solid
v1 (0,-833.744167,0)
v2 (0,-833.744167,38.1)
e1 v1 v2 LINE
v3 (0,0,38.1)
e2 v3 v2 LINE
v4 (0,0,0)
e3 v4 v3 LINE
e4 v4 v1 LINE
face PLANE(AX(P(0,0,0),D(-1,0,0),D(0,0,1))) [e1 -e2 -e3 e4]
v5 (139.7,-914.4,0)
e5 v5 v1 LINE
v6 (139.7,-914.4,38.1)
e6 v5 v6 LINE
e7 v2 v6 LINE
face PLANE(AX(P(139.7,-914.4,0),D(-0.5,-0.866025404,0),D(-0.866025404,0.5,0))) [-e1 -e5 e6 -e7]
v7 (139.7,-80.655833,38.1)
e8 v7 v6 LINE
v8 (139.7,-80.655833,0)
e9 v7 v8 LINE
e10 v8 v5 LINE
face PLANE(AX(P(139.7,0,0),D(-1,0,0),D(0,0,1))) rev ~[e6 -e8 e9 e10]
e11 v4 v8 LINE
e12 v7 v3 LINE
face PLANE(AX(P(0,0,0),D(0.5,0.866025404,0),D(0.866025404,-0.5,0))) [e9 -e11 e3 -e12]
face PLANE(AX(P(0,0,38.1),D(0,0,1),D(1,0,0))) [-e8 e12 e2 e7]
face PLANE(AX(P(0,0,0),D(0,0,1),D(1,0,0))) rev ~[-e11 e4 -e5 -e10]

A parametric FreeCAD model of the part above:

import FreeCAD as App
import Part
import Sketcher
Q = App.Units.Quantity

doc = App.newDocument("Part")
body = doc.addObject("PartDesign::Body", "Body")

# Sketch on XZ plane
sketch1 = body.newObject("Sketcher::SketchObject", "Sketch")
sketch1.AttachmentSupport = (doc.getObject("XZ_Plane"), [""])
sketch1.MapMode = "FlatFace"
sketch1.addGeometry([
    Part.LineSegment(App.Vector(0, 38, 0), App.Vector(0, 0, 0)),
    Part.LineSegment(App.Vector(0, 0, 0), App.Vector(140, 0, 0)),
    Part.LineSegment(App.Vector(140, 0, 0), App.Vector(140, 38, 0)),
    Part.LineSegment(App.Vector(140, 38, 0), App.Vector(0, 38, 0)),
], False)
sketch1.addConstraint([
    Sketcher.Constraint("Coincident", 0, 2, 1, 1),
    Sketcher.Constraint("Coincident", 1, 2, 2, 1),
    Sketcher.Constraint("Coincident", 2, 2, 3, 1),
    Sketcher.Constraint("Coincident", 3, 2, 0, 1),
    Sketcher.Constraint("Vertical", 0),
    Sketcher.Constraint("Horizontal", 1),
    Sketcher.Constraint("Vertical", 2),
    Sketcher.Constraint("Horizontal", 3),
    Sketcher.Constraint("Coincident", 0, 2, -1, 1),
    Sketcher.Constraint("DistanceX", 1, 1, 1, 2, Q("5.5 in")),
    Sketcher.Constraint("DistanceY", 0, 2, 0, 1, Q("1.5 in")),
])
pad1 = body.newObject("PartDesign::Pad", "Pad")
pad1.Profile = sketch1
pad1.Length = Q("36 in")

# Sketch on XY plane
sketch2 = body.newObject("Sketcher::SketchObject", "Sketch001")
sketch2.AttachmentSupport = (doc.getObject("XY_Plane"), [""])
sketch2.MapMode = "FlatFace"
sketch2.addGeometry([
    Part.LineSegment(App.Vector(152, 0, 0), App.Vector(0, 0, 0)),
    Part.LineSegment(App.Vector(0, 0, 0), App.Vector(152, -88, 0)),
    Part.LineSegment(App.Vector(152, -88, 0), App.Vector(152, 0, 0)),
], False)
sketch2.addConstraint([
    Sketcher.Constraint("Coincident", 0, 2, 1, 1),
    Sketcher.Constraint("Coincident", 1, 2, 2, 1),
    Sketcher.Constraint("Coincident", 2, 2, 0, 1),
    Sketcher.Constraint("Horizontal", 0),
    Sketcher.Constraint("Vertical", 2),
    Sketcher.Constraint("Coincident", 0, 2, -1, 1),
    Sketcher.Constraint("DistanceX", 0, 2, 0, 1, Q("6 in")),
    Sketcher.Constraint("Angle", 1, Q("-30 deg")),
])
pocket1 = body.newObject("PartDesign::Pocket", "Pocket")
pocket1.Profile = sketch2
pocket1.Length = Q("2 in")
pocket1.Reversed = True

# Sketch on XY plane
sketch3 = body.newObject("Sketcher::SketchObject", "Sketch002")
sketch3.AttachmentSupport = (doc.getObject("XY_Plane"), [""])
sketch3.MapMode = "FlatFace"
sketch3.addGeometry([
    Part.LineSegment(App.Vector(140, -914, 0), App.Vector(-13, -826, 0)),
    Part.LineSegment(App.Vector(-13, -826, 0), App.Vector(-13, -914, 0)),
    Part.LineSegment(App.Vector(-13, -914, 0), App.Vector(140, -914, 0)),
], False)
sketch3.addConstraint([
    Sketcher.Constraint("Coincident", 0, 2, 1, 1),
    Sketcher.Constraint("Coincident", 1, 2, 2, 1),
    Sketcher.Constraint("Coincident", 2, 2, 0, 1),
    Sketcher.Constraint("Vertical", 1),
    Sketcher.Constraint("Horizontal", 2),
    Sketcher.Constraint("DistanceX", 2, 1, 2, 2, Q("6 in")),
    Sketcher.Constraint("DistanceY", 1, 2, -1, 1, Q("36 in")),
    Sketcher.Constraint("Angle", 0, Q("150 deg")),
    Sketcher.Constraint("DistanceX", 0, 2, -1, 1, Q("0.5 in")),
])
pocket2 = body.newObject("PartDesign::Pocket", "Pocket001")
pocket2.Profile = sketch3
pocket2.Length = Q("2 in")
pocket2.Reversed = True

doc.recompute()
